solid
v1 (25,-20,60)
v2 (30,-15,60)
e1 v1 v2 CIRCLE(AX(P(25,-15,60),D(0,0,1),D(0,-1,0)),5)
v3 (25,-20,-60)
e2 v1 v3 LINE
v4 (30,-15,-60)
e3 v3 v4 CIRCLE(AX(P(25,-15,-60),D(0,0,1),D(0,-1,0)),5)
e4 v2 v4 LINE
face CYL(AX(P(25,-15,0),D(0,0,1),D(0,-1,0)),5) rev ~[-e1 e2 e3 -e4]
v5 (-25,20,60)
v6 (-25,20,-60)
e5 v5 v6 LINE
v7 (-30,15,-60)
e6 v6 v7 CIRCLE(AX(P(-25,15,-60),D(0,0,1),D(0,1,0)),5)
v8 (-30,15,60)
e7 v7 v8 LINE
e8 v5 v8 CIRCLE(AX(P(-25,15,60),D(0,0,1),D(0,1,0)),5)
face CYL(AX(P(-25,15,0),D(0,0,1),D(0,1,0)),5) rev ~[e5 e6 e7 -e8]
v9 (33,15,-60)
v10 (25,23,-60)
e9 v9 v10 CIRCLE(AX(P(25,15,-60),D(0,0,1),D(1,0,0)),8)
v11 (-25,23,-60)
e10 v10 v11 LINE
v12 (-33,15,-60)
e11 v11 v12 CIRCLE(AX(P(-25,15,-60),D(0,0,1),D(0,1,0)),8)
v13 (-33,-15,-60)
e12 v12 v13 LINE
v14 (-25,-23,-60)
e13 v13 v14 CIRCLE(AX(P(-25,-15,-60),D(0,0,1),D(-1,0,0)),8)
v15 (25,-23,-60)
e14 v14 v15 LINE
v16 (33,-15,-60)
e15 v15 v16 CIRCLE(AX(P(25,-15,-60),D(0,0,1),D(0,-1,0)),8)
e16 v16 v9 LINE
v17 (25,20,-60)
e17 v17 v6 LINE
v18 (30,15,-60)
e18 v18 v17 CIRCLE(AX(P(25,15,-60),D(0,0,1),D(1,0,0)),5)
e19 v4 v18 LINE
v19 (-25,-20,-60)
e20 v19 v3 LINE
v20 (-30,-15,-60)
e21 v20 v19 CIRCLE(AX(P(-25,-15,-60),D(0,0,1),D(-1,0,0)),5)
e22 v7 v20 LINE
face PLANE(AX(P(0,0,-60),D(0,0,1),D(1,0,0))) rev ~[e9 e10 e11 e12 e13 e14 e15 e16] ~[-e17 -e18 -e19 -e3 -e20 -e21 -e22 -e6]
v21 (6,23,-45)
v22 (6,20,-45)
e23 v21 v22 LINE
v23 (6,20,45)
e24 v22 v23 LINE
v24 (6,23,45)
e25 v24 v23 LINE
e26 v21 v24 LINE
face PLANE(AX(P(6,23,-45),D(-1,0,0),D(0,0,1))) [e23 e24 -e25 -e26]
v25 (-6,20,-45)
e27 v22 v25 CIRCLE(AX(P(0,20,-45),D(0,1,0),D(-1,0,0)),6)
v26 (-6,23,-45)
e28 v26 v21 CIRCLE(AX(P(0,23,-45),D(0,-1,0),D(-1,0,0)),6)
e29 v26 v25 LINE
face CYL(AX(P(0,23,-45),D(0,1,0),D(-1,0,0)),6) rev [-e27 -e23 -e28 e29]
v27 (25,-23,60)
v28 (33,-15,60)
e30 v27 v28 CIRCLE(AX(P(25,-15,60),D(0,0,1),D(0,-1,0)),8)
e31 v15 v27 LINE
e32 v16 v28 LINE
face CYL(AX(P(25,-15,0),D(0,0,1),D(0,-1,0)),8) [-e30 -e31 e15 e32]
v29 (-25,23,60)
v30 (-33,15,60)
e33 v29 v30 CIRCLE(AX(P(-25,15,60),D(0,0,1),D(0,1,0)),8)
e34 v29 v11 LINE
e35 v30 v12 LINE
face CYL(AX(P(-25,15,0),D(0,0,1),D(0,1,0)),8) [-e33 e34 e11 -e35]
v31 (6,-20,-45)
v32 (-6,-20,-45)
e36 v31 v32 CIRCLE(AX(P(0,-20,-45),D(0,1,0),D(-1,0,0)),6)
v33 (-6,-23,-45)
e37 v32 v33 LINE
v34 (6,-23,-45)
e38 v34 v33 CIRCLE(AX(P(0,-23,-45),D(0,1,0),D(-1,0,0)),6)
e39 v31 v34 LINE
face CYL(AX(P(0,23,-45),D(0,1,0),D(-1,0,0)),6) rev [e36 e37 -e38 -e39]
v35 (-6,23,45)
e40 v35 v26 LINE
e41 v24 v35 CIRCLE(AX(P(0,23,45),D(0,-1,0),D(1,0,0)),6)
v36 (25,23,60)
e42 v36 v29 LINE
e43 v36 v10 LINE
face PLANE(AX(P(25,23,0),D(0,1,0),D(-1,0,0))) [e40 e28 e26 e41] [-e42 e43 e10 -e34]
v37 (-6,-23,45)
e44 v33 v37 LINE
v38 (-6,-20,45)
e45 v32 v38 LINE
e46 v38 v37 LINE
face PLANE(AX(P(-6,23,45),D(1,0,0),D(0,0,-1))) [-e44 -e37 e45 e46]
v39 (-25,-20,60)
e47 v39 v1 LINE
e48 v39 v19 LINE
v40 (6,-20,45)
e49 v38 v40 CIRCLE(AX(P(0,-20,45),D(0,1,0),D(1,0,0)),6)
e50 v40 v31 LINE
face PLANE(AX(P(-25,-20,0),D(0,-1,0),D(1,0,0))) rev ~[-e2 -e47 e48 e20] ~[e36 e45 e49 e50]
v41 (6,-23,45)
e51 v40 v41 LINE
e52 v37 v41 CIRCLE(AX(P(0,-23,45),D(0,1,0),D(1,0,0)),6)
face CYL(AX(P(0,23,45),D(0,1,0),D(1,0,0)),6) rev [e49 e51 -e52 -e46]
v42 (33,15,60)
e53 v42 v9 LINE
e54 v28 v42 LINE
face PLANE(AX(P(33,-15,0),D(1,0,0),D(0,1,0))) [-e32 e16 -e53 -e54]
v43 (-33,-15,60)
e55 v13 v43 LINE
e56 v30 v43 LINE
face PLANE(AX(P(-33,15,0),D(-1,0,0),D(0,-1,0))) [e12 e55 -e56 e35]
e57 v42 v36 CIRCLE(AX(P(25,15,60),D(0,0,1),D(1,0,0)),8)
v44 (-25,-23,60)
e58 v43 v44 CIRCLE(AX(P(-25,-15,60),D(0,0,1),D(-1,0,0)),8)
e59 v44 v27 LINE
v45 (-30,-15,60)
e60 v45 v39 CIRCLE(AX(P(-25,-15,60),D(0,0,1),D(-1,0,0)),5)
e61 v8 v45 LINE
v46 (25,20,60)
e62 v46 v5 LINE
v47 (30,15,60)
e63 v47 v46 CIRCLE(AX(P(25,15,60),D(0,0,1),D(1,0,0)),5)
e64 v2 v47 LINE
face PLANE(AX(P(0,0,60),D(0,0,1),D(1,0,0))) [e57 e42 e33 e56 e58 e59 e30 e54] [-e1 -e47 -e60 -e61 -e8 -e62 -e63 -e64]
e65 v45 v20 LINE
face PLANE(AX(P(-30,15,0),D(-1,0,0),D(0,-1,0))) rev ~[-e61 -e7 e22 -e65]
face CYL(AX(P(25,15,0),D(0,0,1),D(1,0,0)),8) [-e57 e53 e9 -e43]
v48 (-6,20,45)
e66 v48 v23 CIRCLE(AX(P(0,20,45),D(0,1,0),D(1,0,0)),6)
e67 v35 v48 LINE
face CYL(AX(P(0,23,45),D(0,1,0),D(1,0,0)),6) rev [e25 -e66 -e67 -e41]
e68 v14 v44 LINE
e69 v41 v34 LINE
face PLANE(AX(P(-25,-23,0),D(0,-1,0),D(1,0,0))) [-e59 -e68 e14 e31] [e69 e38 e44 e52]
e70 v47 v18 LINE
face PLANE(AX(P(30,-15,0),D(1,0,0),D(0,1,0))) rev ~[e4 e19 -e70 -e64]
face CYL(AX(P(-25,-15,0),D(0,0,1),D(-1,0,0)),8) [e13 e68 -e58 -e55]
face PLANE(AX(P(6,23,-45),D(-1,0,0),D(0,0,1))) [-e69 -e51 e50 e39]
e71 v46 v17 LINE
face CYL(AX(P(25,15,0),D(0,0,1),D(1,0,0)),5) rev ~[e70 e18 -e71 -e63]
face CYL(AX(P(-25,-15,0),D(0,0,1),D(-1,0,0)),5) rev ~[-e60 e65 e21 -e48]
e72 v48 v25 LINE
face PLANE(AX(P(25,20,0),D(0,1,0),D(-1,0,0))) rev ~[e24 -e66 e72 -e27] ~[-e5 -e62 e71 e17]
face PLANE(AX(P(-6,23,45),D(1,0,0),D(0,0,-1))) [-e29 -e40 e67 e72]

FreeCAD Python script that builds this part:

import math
import FreeCAD as App
import Part
import Sketcher

doc = App.newDocument("Part")
body = doc.addObject("PartDesign::Body", "Body")

# Sketch on XY plane
sketch1 = doc.addObject("Sketcher::SketchObject", "Sketch")
body.addObject(sketch1)
sketch1.AttachmentSupport = (doc.XY_Plane, [""])
sketch1.MapMode = "FlatFace"
sketch1.addGeometry([
    Part.LineSegment(App.Vector(-33, 15, 0), App.Vector(-33, -15, 0)),  # 0
    Part.ArcOfCircle(Part.Circle(App.Vector(-25, -15, 0), App.Vector(0, 0, 1), 8), math.radians(-180), math.radians(-90)),  # 1
    Part.LineSegment(App.Vector(-25, -23, 0), App.Vector(25, -23, 0)),  # 2
    Part.ArcOfCircle(Part.Circle(App.Vector(25, -15, 0), App.Vector(0, 0, 1), 8), math.radians(-90), math.radians(0)),  # 3
    Part.LineSegment(App.Vector(33, -15, 0), App.Vector(33, 15, 0)),  # 4
    Part.ArcOfCircle(Part.Circle(App.Vector(25, 15, 0), App.Vector(0, 0, 1), 8), math.radians(0), math.radians(90)),  # 5
    Part.LineSegment(App.Vector(25, 23, 0), App.Vector(-25, 23, 0)),  # 6
    Part.ArcOfCircle(Part.Circle(App.Vector(-25, 15, 0), App.Vector(0, 0, 1), 8), math.radians(90), math.radians(180)),  # 7
    Part.LineSegment(App.Vector(-30, -15, 0), App.Vector(-30, 15, 0)),  # 8
    Part.ArcOfCircle(Part.Circle(App.Vector(-25, 15, 0), App.Vector(0, 0, 1), 5), math.radians(90), math.radians(180)),  # 9
    Part.LineSegment(App.Vector(-25, 20, 0), App.Vector(25, 20, 0)),  # 10
    Part.ArcOfCircle(Part.Circle(App.Vector(25, 15, 0), App.Vector(0, 0, 1), 5), math.radians(0), math.radians(90)),  # 11
    Part.LineSegment(App.Vector(30, 15, 0), App.Vector(30, -15, 0)),  # 12
    Part.ArcOfCircle(Part.Circle(App.Vector(25, -15, 0), App.Vector(0, 0, 1), 5), math.radians(-90), math.radians(0)),  # 13
    Part.LineSegment(App.Vector(25, -20, 0), App.Vector(-25, -20, 0)),  # 14
    Part.ArcOfCircle(Part.Circle(App.Vector(-25, -15, 0), App.Vector(0, 0, 1), 5), math.radians(180), math.radians(270)),  # 15
], False)
sketch1.addConstraint([
    Sketcher.Constraint("Tangent", 0, 2, 1, 1),
    Sketcher.Constraint("Tangent", 1, 2, 2, 1),
    Sketcher.Constraint("Tangent", 2, 2, 3, 1),
    Sketcher.Constraint("Tangent", 3, 2, 4, 1),
    Sketcher.Constraint("Tangent", 4, 2, 5, 1),
    Sketcher.Constraint("Tangent", 5, 2, 6, 1),
    Sketcher.Constraint("Tangent", 6, 2, 7, 1),
    Sketcher.Constraint("Tangent", 7, 2, 0, 1),
    Sketcher.Constraint("Tangent", 8, 2, 9, 2),
    Sketcher.Constraint("Tangent", 9, 1, 10, 1),
    Sketcher.Constraint("Tangent", 10, 2, 11, 2),
    Sketcher.Constraint("Tangent", 11, 1, 12, 1),
    Sketcher.Constraint("Tangent", 12, 2, 13, 2),
    Sketcher.Constraint("Tangent", 13, 1, 14, 1),
    Sketcher.Constraint("Tangent", 14, 2, 15, 2),
    Sketcher.Constraint("Tangent", 15, 1, 8, 1),
    Sketcher.Constraint("Vertical", 0),
    Sketcher.Constraint("Horizontal", 2),
    Sketcher.Constraint("Vertical", 4),
    Sketcher.Constraint("Horizontal", 6),
    Sketcher.Constraint("Vertical", 8),
    Sketcher.Constraint("Horizontal", 10),
    Sketcher.Constraint("Vertical", 12),
    Sketcher.Constraint("Horizontal", 14),
    Sketcher.Constraint("Coincident", 9, 3, 7, 3),
    Sketcher.Constraint("Coincident", 11, 3, 5, 3),
    Sketcher.Constraint("Coincident", 13, 3, 3, 3),
    Sketcher.Constraint("Equal", 1, 3),
    Sketcher.Constraint("Equal", 3, 5),
    Sketcher.Constraint("Equal", 5, 7),
    Sketcher.Constraint("Equal", 13, 15),
    Sketcher.Constraint("Symmetric", 1, 3, 5, 3, -1, 1),
    Sketcher.Constraint("Radius", 1, 8.0),
    Sketcher.Constraint("Radius", 9, 5.0),
    Sketcher.Constraint("DistanceX", 2, 1, 2, 2, 50.0),
    Sketcher.Constraint("DistanceY", 0, 2, 0, 1, 30.0),
])
pad1 = doc.addObject("PartDesign::Pad", "Pad")
body.addObject(pad1)
pad1.Profile = sketch1
pad1.Length = 120
pad1.Midplane = True

# Sketch on XZ plane
sketch2 = doc.addObject("Sketcher::SketchObject", "Sketch001")
body.addObject(sketch2)
sketch2.AttachmentSupport = (doc.XZ_Plane, [""])
sketch2.MapMode = "FlatFace"
sketch2.AttachmentOffset = App.Placement(App.Vector(0, 0, -23), App.Rotation())
sketch2.addGeometry([
    Part.LineSegment(App.Vector(6, 45, 0), App.Vector(6, -45, 0)),
    Part.ArcOfCircle(Part.Circle(App.Vector(0, -45, 0), App.Vector(0, 0, 1), 6), math.radians(180), math.radians(360)),
    Part.LineSegment(App.Vector(-6, -45, 0), App.Vector(-6, 45, 0)),
    Part.ArcOfCircle(Part.Circle(App.Vector(0, 45, 0), App.Vector(0, 0, 1), 6), math.radians(0), math.radians(180)),
], False)
sketch2.addConstraint([
    Sketcher.Constraint("Tangent", 0, 2, 1, 2),
    Sketcher.Constraint("Tangent", 1, 1, 2, 1),
    Sketcher.Constraint("Tangent", 2, 2, 3, 2),
    Sketcher.Constraint("Tangent", 3, 1, 0, 1),
    Sketcher.Constraint("Vertical", 0),
    Sketcher.Constraint("Vertical", 2),
    Sketcher.Constraint("Symmetric", 1, 3, 3, 3, -1, 1),
    Sketcher.Constraint("Radius", 1, 6.0),
    Sketcher.Constraint("DistanceY", 0, 2, 0, 1, 90.0),
])
pocket1 = doc.addObject("PartDesign::Pocket", "Pocket")
body.addObject(pocket1)
pocket1.Profile = sketch2
pocket1.Type = "ThroughAll"
pocket1.Midplane = True

doc.recompute()
